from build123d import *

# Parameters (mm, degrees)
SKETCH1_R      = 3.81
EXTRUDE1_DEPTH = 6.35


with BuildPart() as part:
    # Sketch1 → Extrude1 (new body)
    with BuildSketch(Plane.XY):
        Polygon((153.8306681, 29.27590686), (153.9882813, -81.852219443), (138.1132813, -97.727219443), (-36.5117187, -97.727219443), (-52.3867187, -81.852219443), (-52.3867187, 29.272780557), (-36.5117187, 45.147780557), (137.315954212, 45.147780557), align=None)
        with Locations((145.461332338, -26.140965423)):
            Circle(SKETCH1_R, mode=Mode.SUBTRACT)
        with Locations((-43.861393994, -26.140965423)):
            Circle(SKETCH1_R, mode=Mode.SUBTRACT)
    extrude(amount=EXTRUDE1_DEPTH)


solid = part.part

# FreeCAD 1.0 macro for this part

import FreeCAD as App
import Part
import Sketcher
from FreeCAD import Vector
Q = App.Units.Quantity


def add_polygon(sketch, points):
    """Adds a closed chain of lines whose ends are joined by coincident constraints."""
    first, n = sketch.GeometryCount, len(points)
    for a, b in zip(points, points[1:] + points[:1]):
        sketch.addGeometry(Part.LineSegment(App.Vector(*a, 0), App.Vector(*b, 0)), False)
    for i in range(n):
        sketch.addConstraint(Sketcher.Constraint("Coincident", first + i, 2, first + (i + 1) % n, 1))

doc = App.newDocument("Part")
params = doc.addObject("Spreadsheet::Sheet", "Params")
for row, (alias, value) in enumerate([
    ("sketch1_diameter", "0.3 in"),
    ("sketch1_width", "6.875 in"),
    ("pad1_length", "0.25 in"),
], start=1):
    params.set(f"A{row}", alias)
    params.set(f"B{row}", "=" + value)
    params.setAlias(f"B{row}", alias)

body = doc.addObject("PartDesign::Body", "Body")

sketch1 = body.newObject("Sketcher::SketchObject", "Sketch")
sketch1.AttachmentSupport = (doc.getObject("XY_Plane"), [""])
sketch1.MapMode = "FlatFace"
add_polygon(sketch1, [(153.988281, -81.852219), (153.830668, 29.275907), (137.315954, 45.147781), (-36.511719, 45.147781), (-52.386719, 29.272781), (-52.386719, -81.852219), (-36.511719, -97.727219), (138.113281, -97.727219)])
sketch1.addGeometry(Part.Circle(Vector(145.461332, -26.140965, 0), Vector(0, 0, 1), 3.81), False)
sketch1.addGeometry(Part.Circle(Vector(-43.861394, -26.140965, 0), Vector(0, 0, 1), 3.81), False)
sketch1.addConstraint([
    Sketcher.Constraint("Horizontal", 2),
    Sketcher.Constraint("Vertical", 4),
    Sketcher.Constraint("Horizontal", 6),
    Sketcher.Constraint("Equal", 8, 9),
    Sketcher.Constraint("Perpendicular", 3, 5),
    Sketcher.Constraint("Perpendicular", 5, 7),
    Sketcher.Constraint("Horizontal", 8, 3, 9, 3),
    Sketcher.Constraint("Horizontal", 4, 2, 7, 2),
    Sketcher.Constraint("Vertical", 2, 2, 5, 2),
    Sketcher.Constraint("Equal", 3, 5),
    Sketcher.Constraint("Diameter", 8, Q("0.3 in")),
    Sketcher.Constraint("DistanceY", 4, 2, 2, 2, Q("5 in")),
    Sketcher.Constraint("DistanceX", 4, 2, 6, 2, Q("7.5 in")),
    Sketcher.Constraint("DistanceX", 6, 1, 6, 2, Q("6.875 in")),
    Sketcher.Constraint("Distance", 0, Q("111.128238 mm")),
    Sketcher.Constraint("DistanceX", 2, 2, 2, 1, Q("173.827673 mm")),
    Sketcher.Constraint("DistanceX", -1, 1, 0, 2, Q("153.830668 mm")),
    Sketcher.Constraint("DistanceY", -1, 1, 1, 2, Q("45.147781 mm")),
    Sketcher.Constraint("DistanceX", 2, 2, -1, 1, Q("36.511719 mm")),
    Sketcher.Constraint("DistanceX", 1, 2, 8, 3, Q("8.145378 mm")),
    Sketcher.Constraint("DistanceX", 9, 3, 1, 2, Q("181.177348 mm")),
    Sketcher.Constraint("DistanceY", 8, 3, -1, 1, Q("26.140965 mm")),
])
sketch1.setExpression("Constraints[18]", "Params.sketch1_diameter")
sketch1.setExpression("Constraints[21]", "Params.sketch1_width")
pad1 = body.newObject("PartDesign::Pad", "Pad")
pad1.Profile = sketch1
pad1.setExpression("Length", "Params.pad1_length")

doc.recompute()
